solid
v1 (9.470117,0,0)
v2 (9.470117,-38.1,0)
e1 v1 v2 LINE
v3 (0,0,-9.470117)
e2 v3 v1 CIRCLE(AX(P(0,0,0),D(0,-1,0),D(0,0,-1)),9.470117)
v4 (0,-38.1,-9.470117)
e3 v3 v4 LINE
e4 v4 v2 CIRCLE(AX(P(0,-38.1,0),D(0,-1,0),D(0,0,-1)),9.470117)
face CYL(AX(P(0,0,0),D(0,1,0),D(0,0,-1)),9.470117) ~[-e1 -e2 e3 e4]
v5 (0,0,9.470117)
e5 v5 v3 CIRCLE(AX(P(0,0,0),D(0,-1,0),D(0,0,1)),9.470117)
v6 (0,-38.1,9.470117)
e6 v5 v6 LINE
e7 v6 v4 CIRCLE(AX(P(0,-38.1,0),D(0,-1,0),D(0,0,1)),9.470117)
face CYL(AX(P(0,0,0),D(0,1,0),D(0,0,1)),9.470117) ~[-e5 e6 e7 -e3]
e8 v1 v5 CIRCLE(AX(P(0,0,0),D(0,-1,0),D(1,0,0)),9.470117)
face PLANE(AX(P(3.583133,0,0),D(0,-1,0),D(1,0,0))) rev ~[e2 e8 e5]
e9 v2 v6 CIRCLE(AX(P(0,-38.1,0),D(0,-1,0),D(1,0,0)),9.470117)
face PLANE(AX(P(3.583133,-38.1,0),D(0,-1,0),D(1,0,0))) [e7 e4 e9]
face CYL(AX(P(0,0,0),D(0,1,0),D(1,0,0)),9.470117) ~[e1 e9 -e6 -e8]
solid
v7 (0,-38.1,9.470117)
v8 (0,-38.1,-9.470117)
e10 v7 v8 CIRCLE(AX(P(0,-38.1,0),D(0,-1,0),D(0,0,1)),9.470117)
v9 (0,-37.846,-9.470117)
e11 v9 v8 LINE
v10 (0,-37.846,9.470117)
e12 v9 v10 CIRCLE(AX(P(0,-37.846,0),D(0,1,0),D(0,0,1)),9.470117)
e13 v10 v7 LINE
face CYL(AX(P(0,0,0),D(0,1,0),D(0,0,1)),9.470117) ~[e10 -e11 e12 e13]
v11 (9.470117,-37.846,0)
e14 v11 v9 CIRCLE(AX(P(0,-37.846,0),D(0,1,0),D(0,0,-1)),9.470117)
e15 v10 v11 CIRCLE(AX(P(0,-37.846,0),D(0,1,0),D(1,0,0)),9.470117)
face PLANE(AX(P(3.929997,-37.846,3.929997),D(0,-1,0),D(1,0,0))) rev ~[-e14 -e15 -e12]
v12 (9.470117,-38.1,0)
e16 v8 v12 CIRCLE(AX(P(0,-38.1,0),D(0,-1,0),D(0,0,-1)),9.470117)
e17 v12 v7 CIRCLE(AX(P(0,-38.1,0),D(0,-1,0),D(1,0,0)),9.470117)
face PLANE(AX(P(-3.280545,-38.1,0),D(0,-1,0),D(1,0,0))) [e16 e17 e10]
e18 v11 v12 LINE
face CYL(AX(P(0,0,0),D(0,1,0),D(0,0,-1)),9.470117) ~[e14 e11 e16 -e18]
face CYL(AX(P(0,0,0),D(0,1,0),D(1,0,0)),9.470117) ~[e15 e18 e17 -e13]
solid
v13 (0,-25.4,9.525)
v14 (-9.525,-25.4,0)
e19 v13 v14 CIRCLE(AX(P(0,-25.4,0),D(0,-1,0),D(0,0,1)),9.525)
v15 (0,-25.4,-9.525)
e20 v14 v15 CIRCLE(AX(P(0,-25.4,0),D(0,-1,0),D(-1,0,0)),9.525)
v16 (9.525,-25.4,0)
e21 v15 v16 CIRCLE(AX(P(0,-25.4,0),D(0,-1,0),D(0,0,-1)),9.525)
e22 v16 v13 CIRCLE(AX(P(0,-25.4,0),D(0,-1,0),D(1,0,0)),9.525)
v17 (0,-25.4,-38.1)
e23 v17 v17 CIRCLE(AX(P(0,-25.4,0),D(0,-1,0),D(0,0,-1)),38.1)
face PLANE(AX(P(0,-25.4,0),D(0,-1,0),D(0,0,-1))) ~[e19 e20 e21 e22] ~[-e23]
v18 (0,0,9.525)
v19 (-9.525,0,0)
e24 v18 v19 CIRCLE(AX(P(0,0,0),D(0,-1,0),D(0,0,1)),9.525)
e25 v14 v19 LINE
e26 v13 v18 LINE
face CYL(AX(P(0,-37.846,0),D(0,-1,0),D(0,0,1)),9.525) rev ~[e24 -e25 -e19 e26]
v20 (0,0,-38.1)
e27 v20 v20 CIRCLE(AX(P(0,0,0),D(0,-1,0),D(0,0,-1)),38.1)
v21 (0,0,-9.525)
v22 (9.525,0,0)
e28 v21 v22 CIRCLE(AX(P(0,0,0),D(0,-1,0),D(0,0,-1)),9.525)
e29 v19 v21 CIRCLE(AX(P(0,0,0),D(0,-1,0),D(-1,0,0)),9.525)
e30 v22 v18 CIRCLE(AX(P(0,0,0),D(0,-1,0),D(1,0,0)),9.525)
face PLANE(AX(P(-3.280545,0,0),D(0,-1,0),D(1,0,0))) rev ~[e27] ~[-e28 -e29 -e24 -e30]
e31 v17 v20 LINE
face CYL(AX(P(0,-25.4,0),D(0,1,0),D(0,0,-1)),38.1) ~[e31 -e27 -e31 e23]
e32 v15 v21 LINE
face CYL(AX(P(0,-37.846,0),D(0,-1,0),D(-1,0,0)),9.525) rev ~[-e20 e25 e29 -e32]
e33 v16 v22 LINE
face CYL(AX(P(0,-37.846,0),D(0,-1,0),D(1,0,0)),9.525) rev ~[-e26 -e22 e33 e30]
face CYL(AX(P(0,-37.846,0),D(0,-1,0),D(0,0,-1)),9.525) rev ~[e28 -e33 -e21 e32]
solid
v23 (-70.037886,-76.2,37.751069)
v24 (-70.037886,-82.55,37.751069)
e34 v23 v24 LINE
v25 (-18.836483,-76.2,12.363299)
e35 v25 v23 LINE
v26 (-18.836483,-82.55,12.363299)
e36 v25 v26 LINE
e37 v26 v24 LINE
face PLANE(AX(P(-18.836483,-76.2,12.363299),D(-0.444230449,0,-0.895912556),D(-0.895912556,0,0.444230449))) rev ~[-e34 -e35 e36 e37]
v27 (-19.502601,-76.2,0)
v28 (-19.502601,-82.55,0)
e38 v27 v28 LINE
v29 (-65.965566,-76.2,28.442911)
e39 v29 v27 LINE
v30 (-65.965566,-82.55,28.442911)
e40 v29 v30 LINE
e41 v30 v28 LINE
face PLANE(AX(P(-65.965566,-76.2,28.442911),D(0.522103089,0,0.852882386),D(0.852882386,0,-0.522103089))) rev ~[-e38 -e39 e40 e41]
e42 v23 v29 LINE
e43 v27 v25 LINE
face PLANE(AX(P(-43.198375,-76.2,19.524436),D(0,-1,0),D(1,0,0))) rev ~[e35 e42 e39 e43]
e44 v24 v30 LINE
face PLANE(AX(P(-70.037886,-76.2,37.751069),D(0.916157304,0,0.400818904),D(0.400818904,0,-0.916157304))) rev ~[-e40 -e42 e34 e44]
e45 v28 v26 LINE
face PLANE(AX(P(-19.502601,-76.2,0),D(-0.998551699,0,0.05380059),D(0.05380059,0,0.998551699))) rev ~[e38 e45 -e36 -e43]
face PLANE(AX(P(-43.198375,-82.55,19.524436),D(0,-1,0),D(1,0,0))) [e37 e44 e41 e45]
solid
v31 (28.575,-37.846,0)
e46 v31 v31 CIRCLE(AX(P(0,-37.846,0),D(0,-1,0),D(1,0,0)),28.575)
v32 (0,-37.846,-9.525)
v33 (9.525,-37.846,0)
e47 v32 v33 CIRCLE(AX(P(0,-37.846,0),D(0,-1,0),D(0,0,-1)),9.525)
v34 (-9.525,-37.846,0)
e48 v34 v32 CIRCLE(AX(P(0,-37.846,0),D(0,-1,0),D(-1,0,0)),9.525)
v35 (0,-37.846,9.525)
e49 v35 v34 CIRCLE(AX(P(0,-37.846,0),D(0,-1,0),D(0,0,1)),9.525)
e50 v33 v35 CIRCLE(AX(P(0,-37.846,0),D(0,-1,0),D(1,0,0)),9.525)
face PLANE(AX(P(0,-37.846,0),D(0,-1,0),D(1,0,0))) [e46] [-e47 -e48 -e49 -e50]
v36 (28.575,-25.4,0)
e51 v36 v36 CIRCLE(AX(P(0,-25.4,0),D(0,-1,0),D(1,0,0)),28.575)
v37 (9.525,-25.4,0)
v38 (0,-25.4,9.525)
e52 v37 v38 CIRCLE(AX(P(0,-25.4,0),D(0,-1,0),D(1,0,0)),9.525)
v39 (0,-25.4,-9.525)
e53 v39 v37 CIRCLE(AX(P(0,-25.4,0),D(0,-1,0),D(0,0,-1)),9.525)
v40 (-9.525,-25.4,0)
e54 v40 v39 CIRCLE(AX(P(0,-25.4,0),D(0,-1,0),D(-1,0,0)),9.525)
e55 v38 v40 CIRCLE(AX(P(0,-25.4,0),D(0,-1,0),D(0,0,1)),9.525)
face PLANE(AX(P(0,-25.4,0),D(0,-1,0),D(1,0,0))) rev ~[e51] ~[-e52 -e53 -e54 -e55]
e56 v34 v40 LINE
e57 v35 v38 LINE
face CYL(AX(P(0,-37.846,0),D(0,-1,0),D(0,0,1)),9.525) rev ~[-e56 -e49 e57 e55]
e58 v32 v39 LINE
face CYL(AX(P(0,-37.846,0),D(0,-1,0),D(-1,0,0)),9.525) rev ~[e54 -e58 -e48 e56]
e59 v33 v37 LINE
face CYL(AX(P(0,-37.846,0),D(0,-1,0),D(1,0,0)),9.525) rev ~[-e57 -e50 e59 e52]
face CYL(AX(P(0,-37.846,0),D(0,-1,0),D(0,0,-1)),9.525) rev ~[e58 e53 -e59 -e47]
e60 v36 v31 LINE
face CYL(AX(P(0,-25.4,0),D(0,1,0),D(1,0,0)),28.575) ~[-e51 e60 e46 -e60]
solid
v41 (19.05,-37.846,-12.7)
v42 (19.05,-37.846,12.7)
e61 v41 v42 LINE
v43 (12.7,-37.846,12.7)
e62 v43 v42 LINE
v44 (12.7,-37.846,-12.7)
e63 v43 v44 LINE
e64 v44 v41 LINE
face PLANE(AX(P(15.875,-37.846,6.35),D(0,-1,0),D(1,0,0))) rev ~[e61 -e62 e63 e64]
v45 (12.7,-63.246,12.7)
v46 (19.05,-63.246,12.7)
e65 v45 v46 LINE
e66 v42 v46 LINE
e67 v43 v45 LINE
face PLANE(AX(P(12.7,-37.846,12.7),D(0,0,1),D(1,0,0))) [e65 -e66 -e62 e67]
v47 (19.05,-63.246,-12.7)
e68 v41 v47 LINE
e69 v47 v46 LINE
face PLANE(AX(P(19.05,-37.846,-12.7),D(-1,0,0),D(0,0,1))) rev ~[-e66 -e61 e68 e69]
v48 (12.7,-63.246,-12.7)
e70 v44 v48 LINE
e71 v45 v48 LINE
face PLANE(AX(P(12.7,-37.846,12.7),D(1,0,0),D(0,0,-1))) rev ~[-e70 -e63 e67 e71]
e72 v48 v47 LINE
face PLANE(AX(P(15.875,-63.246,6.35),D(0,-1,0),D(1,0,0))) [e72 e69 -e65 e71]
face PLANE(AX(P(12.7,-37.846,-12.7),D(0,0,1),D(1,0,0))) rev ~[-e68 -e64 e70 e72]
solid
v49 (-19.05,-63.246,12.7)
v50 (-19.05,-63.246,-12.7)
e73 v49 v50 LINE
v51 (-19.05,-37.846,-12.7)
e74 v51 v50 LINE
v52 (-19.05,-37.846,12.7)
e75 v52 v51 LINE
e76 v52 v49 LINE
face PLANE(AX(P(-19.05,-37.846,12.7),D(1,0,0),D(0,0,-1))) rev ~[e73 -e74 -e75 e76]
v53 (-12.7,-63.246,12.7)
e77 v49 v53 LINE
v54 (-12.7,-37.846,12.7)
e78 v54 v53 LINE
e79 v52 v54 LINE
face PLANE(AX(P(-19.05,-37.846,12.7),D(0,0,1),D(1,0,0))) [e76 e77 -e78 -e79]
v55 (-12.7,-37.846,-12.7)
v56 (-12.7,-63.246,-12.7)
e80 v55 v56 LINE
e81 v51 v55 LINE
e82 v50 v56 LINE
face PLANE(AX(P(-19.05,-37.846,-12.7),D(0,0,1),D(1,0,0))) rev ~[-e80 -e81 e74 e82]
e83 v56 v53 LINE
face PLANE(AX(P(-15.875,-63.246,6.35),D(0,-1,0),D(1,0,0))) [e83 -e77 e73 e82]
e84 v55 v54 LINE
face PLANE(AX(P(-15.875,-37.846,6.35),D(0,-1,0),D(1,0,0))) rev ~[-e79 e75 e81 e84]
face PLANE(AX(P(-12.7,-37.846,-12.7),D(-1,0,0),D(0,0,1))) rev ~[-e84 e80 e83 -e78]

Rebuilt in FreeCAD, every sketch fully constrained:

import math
import FreeCAD as App
import Part
import Sketcher
from FreeCAD import Vector
Q = App.Units.Quantity

doc = App.newDocument("Part")
params = doc.addObject("Spreadsheet::Sheet", "Params")
for row, (alias, value) in enumerate([
    ("sketch1_width", "1 in"),
    ("sketch1_height", "1.5 in"),
    ("revolution_angle", "360 deg"),
    ("pad1_length", "1.5 in"),
    ("sketch3_diameter", "2.25 in"),
    ("pad2_length", "0.49 in"),
    ("sketch4_radius", "0.375 in"),
    ("pad3_length", "118.13693 mm"),
    ("pad4_length", "1.5 in"),
    ("sketch6_height", "1 in"),
    ("sketch6_width", "0.25 in"),
    ("pad5_length", "1 in"),
    ("sketch7_height", "1 in"),
    ("sketch7_width", "0.25 in"),
    ("pad6_length", "1 in"),
    ("sketch8_length", "0.4 in"),
    ("sketch8_length2", "2.25 in"),
    ("pad7_length", "0.25 in"),
], start=1):
    params.set(f"A{row}", alias)
    params.set(f"B{row}", "=" + value)
    params.setAlias(f"B{row}", alias)

body = doc.addObject("PartDesign::Body", "Body")

# Sketch on YZ plane
sketch1 = body.newObject("Sketcher::SketchObject", "Sketch")
sketch1.AttachmentSupport = (doc.getObject("YZ_Plane"), [""])
sketch1.MapMode = "FlatFace"
sketch1.addGeometry([
    Part.LineSegment(Vector(0, 0, 0), Vector(-25, 0, 0)),
    Part.LineSegment(Vector(-25, 0, 0), Vector(-25, -38, 0)),
    Part.LineSegment(Vector(-25, -38, 0), Vector(0, -38, 0)),
    Part.LineSegment(Vector(0, -38, 0), Vector(0, 0, 0)),
], False)
sketch1.addConstraint([
    Sketcher.Constraint("Coincident", 0, 2, 1, 1),
    Sketcher.Constraint("Coincident", 1, 2, 2, 1),
    Sketcher.Constraint("Coincident", 2, 2, 3, 1),
    Sketcher.Constraint("Coincident", 3, 2, 0, 1),
    Sketcher.Constraint("Horizontal", 0),
    Sketcher.Constraint("Vertical", 1),
    Sketcher.Constraint("Horizontal", 2),
    Sketcher.Constraint("Vertical", 3),
    Sketcher.Constraint("Coincident", 3, 2, -1, 1),
    Sketcher.Constraint("DistanceX", 0, 2, 0, 1, Q("1 in")),
    Sketcher.Constraint("DistanceY", 1, 2, 1, 1, Q("1.5 in")),
])
sketch1.setExpression("Constraints[9]", "Params.sketch1_width")
sketch1.setExpression("Constraints[10]", "Params.sketch1_height")
revolution = body.newObject("PartDesign::Revolution", "Revolution")
revolution.Profile = sketch1
revolution.ReferenceAxis = (sketch1, ["H_Axis"])
revolution.setExpression("Angle", "Params.revolution_angle")

# Sketch on XZ plane
sketch2 = body.newObject("Sketcher::SketchObject", "Sketch001")
sketch2.AttachmentSupport = (doc.getObject("XZ_Plane"), [""])
sketch2.MapMode = "FlatFace"
sketch2.addGeometry([
    Part.ArcOfCircle(Part.Circle(Vector(0, 0, 0), Vector(0, 0, 1), 9), math.radians(90), math.radians(270)),
    Part.ArcOfCircle(Part.Circle(Vector(0, 0, 0), Vector(0, 0, 1), 9), math.radians(-90), math.radians(0)),
    Part.ArcOfCircle(Part.Circle(Vector(0, 0, 0), Vector(0, 0, 1), 9), math.radians(0), math.radians(90)),
], False)
sketch2.addConstraint([
    Sketcher.Constraint("Tangent", 0, 2, 1, 1),
    Sketcher.Constraint("Tangent", 1, 2, 2, 1),
    Sketcher.Constraint("Tangent", 2, 2, 0, 1),
    Sketcher.Constraint("Coincident", 0, 3, -1, 1),
    Sketcher.Constraint("PointOnObject", 0, 2, -2),
    Sketcher.Constraint("PointOnObject", 1, 2, -1),
    Sketcher.Constraint("PointOnObject", 2, 2, -2),
    Sketcher.Constraint("Radius", 0, Q("9.470117 mm")),
])
pad1 = body.newObject("PartDesign::Pad", "Pad")
pad1.Profile = sketch2
pad1.setExpression("Length", "Params.pad1_length")
body2 = doc.addObject("PartDesign::Body", "Body001")

# Sketch on XZ plane
sketch3 = body2.newObject("Sketcher::SketchObject", "Sketch002")
sketch3.AttachmentSupport = (doc.getObject("XZ_Plane001"), [""])
sketch3.MapMode = "FlatFace"
sketch3.AttachmentOffset = App.Placement(Vector(0, 0, 1 * 25.4), App.Rotation())
sketch3.addGeometry(Part.Circle(Vector(0, 0, 0), Vector(0, 0, 1), 29), False)
sketch3.addConstraint([
    Sketcher.Constraint("Coincident", 0, 3, -1, 1),
    Sketcher.Constraint("Diameter", 0, Q("2.25 in")),
])
sketch3.setExpression("Constraints[1]", "Params.sketch3_diameter")
pad2 = body2.newObject("PartDesign::Pad", "Pad001")
pad2.Profile = sketch3
pad2.setExpression("Length", "Params.pad2_length")
body3 = doc.addObject("PartDesign::Body", "Body002")

# Sketch on XZ plane
sketch4 = body3.newObject("Sketcher::SketchObject", "Sketch003")
sketch4.AttachmentSupport = (doc.getObject("XZ_Plane002"), [""])
sketch4.MapMode = "FlatFace"
sketch4.AttachmentOffset = App.Placement(Vector(0, 0, 1.49 * 25.4), App.Rotation())
sketch4.addGeometry([
    Part.ArcOfCircle(Part.Circle(Vector(0, 0, 0), Vector(0, 0, 1), 10), math.radians(0), math.radians(90)),
    Part.ArcOfCircle(Part.Circle(Vector(0, 0, 0), Vector(0, 0, 1), 10), math.radians(90), math.radians(180)),
    Part.ArcOfCircle(Part.Circle(Vector(0, 0, 0), Vector(0, 0, 1), 10), math.radians(180), math.radians(270)),
    Part.ArcOfCircle(Part.Circle(Vector(0, 0, 0), Vector(0, 0, 1), 10), math.radians(-90), math.radians(0)),
], False)
sketch4.addConstraint([
    Sketcher.Constraint("Tangent", 0, 2, 1, 1),
    Sketcher.Constraint("Tangent", 1, 2, 2, 1),
    Sketcher.Constraint("Tangent", 2, 2, 3, 1),
    Sketcher.Constraint("Tangent", 3, 2, 0, 1),
    Sketcher.Constraint("Coincident", 0, 3, -1, 1),
    Sketcher.Constraint("Equal", 0, 1),
    Sketcher.Constraint("PointOnObject", 0, 2, -2),
    Sketcher.Constraint("PointOnObject", 1, 2, -1),
    Sketcher.Constraint("PointOnObject", 2, 2, -2),
    Sketcher.Constraint("PointOnObject", 3, 2, -1),
    Sketcher.Constraint("Radius", 0, Q("0.375 in")),
])
sketch4.setExpression("Constraints[10]", "Params.sketch4_radius")
pad3 = body3.newObject("PartDesign::Pad", "Pad002")
pad3.Profile = sketch4
pad3.setExpression("Length", "Params.pad3_length")
pad3.Reversed = True
body.AllowCompound = True
doc.recompute()

body4 = doc.addObject("PartDesign::Body", "Body003")
body4.BaseFeature = body3
boolean = body.newObject("PartDesign::Boolean", "Boolean")
boolean.Type = "Cut"
boolean.addObjects([body4])
doc.recompute()

boolean2 = body2.newObject("PartDesign::Boolean", "Boolean001")
boolean2.Type = "Cut"
boolean2.addObjects([body3])
body5 = doc.addObject("PartDesign::Body", "Body004")

# Sketch on XZ plane
sketch5 = body5.newObject("Sketcher::SketchObject", "Sketch004")
sketch5.AttachmentSupport = (doc.getObject("XZ_Plane004"), [""])
sketch5.MapMode = "FlatFace"
sketch5.addGeometry([
    Part.ArcOfCircle(Part.Circle(Vector(0, 0, 0), Vector(0, 0, 1), 9), math.radians(-90), math.radians(0)),
    Part.ArcOfCircle(Part.Circle(Vector(0, 0, 0), Vector(0, 0, 1), 9), math.radians(0), math.radians(90)),
    Part.ArcOfCircle(Part.Circle(Vector(0, 0, 0), Vector(0, 0, 1), 9), math.radians(90), math.radians(270)),
], False)
sketch5.addConstraint([
    Sketcher.Constraint("Tangent", 0, 2, 1, 1),
    Sketcher.Constraint("Tangent", 1, 2, 2, 1),
    Sketcher.Constraint("Tangent", 2, 2, 0, 1),
    Sketcher.Constraint("Coincident", 0, 3, -1, 1),
    Sketcher.Constraint("PointOnObject", 0, 2, -1),
    Sketcher.Constraint("PointOnObject", 1, 2, -2),
    Sketcher.Constraint("PointOnObject", 2, 2, -2),
    Sketcher.Constraint("Radius", 0, Q("9.470117 mm")),
])
pad4 = body5.newObject("PartDesign::Pad", "Pad003")
pad4.Profile = sketch5
pad4.setExpression("Length", "Params.pad4_length")
body6 = doc.addObject("PartDesign::Body", "Body005")

# Sketch on XZ plane
sketch6 = body6.newObject("Sketcher::SketchObject", "Sketch005")
sketch6.AttachmentSupport = (doc.getObject("XZ_Plane005"), [""])
sketch6.MapMode = "FlatFace"
sketch6.AttachmentOffset = App.Placement(Vector(0, 0, 1.49 * 25.4), App.Rotation())
sketch6.addGeometry([
    Part.LineSegment(Vector(-19, 13, 0), Vector(-19, -13, 0)),
    Part.LineSegment(Vector(-19, -13, 0), Vector(-13, -13, 0)),
    Part.LineSegment(Vector(-13, -13, 0), Vector(-13, 13, 0)),
    Part.LineSegment(Vector(-13, 13, 0), Vector(-19, 13, 0)),
], False)
sketch6.addConstraint([
    Sketcher.Constraint("Coincident", 0, 2, 1, 1),
    Sketcher.Constraint("Coincident", 1, 2, 2, 1),
    Sketcher.Constraint("Coincident", 2, 2, 3, 1),
    Sketcher.Constraint("Coincident", 3, 2, 0, 1),
    Sketcher.Constraint("Vertical", 0),
    Sketcher.Constraint("Horizontal", 1),
    Sketcher.Constraint("Vertical", 2),
    Sketcher.Constraint("Horizontal", 3),
    Sketcher.Constraint("DistanceY", 0, 2, 0, 1, Q("1 in")),
    Sketcher.Constraint("DistanceX", 1, 1, 1, 2, Q("0.25 in")),
    Sketcher.Constraint("DistanceY", 0, 2, -1, 1, Q("0.5 in")),
    Sketcher.Constraint("DistanceX", 1, 2, -1, 1, Q("0.5 in")),
])
sketch6.setExpression("Constraints[8]", "Params.sketch6_height")
sketch6.setExpression("Constraints[9]", "Params.sketch6_width")
pad5 = body6.newObject("PartDesign::Pad", "Pad004")
pad5.Profile = sketch6
pad5.setExpression("Length", "Params.pad5_length")
body7 = doc.addObject("PartDesign::Body", "Body006")

# Sketch on XZ plane
sketch7 = body7.newObject("Sketcher::SketchObject", "Sketch006")
sketch7.AttachmentSupport = (doc.getObject("XZ_Plane006"), [""])
sketch7.MapMode = "FlatFace"
sketch7.AttachmentOffset = App.Placement(Vector(0, 0, 1.49 * 25.4), App.Rotation())
sketch7.addGeometry([
    Part.LineSegment(Vector(13, 13, 0), Vector(13, -13, 0)),
    Part.LineSegment(Vector(13, -13, 0), Vector(19, -13, 0)),
    Part.LineSegment(Vector(19, -13, 0), Vector(19, 13, 0)),
    Part.LineSegment(Vector(19, 13, 0), Vector(13, 13, 0)),
], False)
sketch7.addConstraint([
    Sketcher.Constraint("Coincident", 0, 2, 1, 1),
    Sketcher.Constraint("Coincident", 1, 2, 2, 1),
    Sketcher.Constraint("Coincident", 2, 2, 3, 1),
    Sketcher.Constraint("Coincident", 3, 2, 0, 1),
    Sketcher.Constraint("Vertical", 0),
    Sketcher.Constraint("Horizontal", 1),
    Sketcher.Constraint("Vertical", 2),
    Sketcher.Constraint("Horizontal", 3),
    Sketcher.Constraint("DistanceY", 0, 2, 0, 1, Q("1 in")),
    Sketcher.Constraint("DistanceX", 1, 1, 1, 2, Q("0.25 in")),
    Sketcher.Constraint("DistanceX", -1, 1, 0, 2, Q("0.5 in")),
    Sketcher.Constraint("DistanceY", 0, 2, -1, 1, Q("0.5 in")),
])
sketch7.setExpression("Constraints[8]", "Params.sketch7_height")
sketch7.setExpression("Constraints[9]", "Params.sketch7_width")
pad6 = body7.newObject("PartDesign::Pad", "Pad005")
pad6.Profile = sketch7
pad6.setExpression("Length", "Params.pad6_length")
body8 = doc.addObject("PartDesign::Body", "Body007")

# Sketch on XZ plane
sketch8 = body8.newObject("Sketcher::SketchObject", "Sketch007")
sketch8.AttachmentSupport = (doc.getObject("XZ_Plane007"), [""])
sketch8.MapMode = "FlatFace"
sketch8.AttachmentOffset = App.Placement(Vector(0, 0, 3 * 25.4), App.Rotation())
sketch8.addGeometry([
    Part.LineSegment(Vector(-66, 28, 0), Vector(-20, 0, 0)),
    Part.LineSegment(Vector(-20, 0, 0), Vector(-19, 12, 0)),
    Part.LineSegment(Vector(-19, 12, 0), Vector(-70, 38, 0)),
    Part.LineSegment(Vector(-70, 38, 0), Vector(-66, 28, 0)),
], False)
sketch8.addConstraint([
    Sketcher.Constraint("Coincident", 0, 2, 1, 1),
    Sketcher.Constraint("Coincident", 1, 2, 2, 1),
    Sketcher.Constraint("Coincident", 2, 2, 3, 1),
    Sketcher.Constraint("Coincident", 3, 2, 0, 1),
    Sketcher.Constraint("PointOnObject", 0, 2, -1),
    Sketcher.Constraint("Distance", 3, Q("0.4 in")),
    Sketcher.Constraint("Distance", 2, Q("2.25 in")),
    Sketcher.Constraint("DistanceX", 0, 2, -1, 1, Q("19.502601 mm")),
    Sketcher.Constraint("DistanceY", -1, 1, 1, 2, Q("12.363299 mm")),
    Sketcher.Constraint("Distance", 1, Q("12.381231 mm")),
    Sketcher.Constraint("DistanceY", -1, 1, 2, 2, Q("37.751069 mm")),
    Sketcher.Constraint("DistanceY", -1, 1, 3, 2, Q("28.442911 mm")),
])
sketch8.setExpression("Constraints[5]", "Params.sketch8_length")
sketch8.setExpression("Constraints[6]", "Params.sketch8_length2")
pad7 = body8.newObject("PartDesign::Pad", "Pad006")
pad7.Profile = sketch8
pad7.setExpression("Length", "Params.pad7_length")

doc.recompute()
